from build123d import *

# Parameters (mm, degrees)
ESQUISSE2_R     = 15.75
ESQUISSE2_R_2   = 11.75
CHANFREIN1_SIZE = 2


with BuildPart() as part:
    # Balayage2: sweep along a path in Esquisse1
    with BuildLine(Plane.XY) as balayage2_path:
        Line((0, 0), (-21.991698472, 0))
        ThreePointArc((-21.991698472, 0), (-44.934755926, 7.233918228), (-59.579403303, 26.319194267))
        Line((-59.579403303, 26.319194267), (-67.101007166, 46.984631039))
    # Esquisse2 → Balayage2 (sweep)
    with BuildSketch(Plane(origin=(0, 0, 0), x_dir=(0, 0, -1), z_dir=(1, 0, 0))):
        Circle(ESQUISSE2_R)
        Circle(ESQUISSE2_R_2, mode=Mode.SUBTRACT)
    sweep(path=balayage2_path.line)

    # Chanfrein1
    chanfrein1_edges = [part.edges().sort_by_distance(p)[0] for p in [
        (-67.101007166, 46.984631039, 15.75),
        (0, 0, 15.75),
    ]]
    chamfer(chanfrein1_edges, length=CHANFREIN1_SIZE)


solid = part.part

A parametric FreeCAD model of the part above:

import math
import FreeCAD as App
import Part
import Sketcher

V = App.Vector
Q = App.Units.Quantity


def edges_at(feature, points):
    """Names of the edges that pass closest to the given points."""
    edges = feature.Shape.Edges
    near = lambda p: min(range(len(edges)), key=lambda i: edges[i].distToShape(Part.Vertex(*p))[0])
    return sorted({f"Edge{near(p) + 1}" for p in points})

doc = App.newDocument("Part")
body = doc.addObject("PartDesign::Body", "Body")

sketch1 = body.newObject("Sketcher::SketchObject", "Sketch")
sketch1.AttachmentSupport = (doc.getObject("YZ_Plane"), [""])
sketch1.MapMode = "FlatFace"
sketch1.addGeometry([
    Part.Circle(V(0, 0, 0), V(0, 0, 1), 16),
    Part.Circle(V(0, 0, 0), V(0, 0, 1), 12),
], False)
sketch1.addConstraint([
    Sketcher.Constraint("Coincident", 0, 3, -1, 1),
    Sketcher.Constraint("Coincident", 1, 3, -1, 1),
    Sketcher.Constraint("Diameter", 0, Q("31.5 mm")),
    Sketcher.Constraint("Diameter", 1, Q("23.5 mm")),
])

sketch2 = body.newObject("Sketcher::SketchObject", "Sketch001")
sketch2.AttachmentSupport = (doc.getObject("XY_Plane"), [""])
sketch2.MapMode = "FlatFace"
sketch2.addGeometry([
    Part.LineSegment(V(0, 0, 0), V(-22, 0, 0)),
    Part.ArcOfCircle(Part.Circle(V(-22, 40, 0), V(0, 0, 1), 40), math.radians(-160), math.radians(-90)),
    Part.LineSegment(V(-60, 26, 0), V(-67, 47, 0)),
], False)
sketch2.addConstraint([
    Sketcher.Constraint("Tangent", 0, 2, 1, 2),
    Sketcher.Constraint("Tangent", 1, 1, 2, 1),
    Sketcher.Constraint("Horizontal", 0),
    Sketcher.Constraint("Coincident", 0, 1, -1, 1),
    Sketcher.Constraint("Radius", 1, Q("40 mm")),
    Sketcher.Constraint("Angle", 2, Q("110 deg")),
    Sketcher.Constraint("DistanceX", 0, 2, 0, 1, Q("21.991698 mm")),
    Sketcher.Constraint("Distance", 2, Q("21.991698 mm")),
])
doc.recompute()

additivepipe = body.newObject("PartDesign::AdditivePipe", "AdditivePipe")
additivepipe.Profile = sketch1
additivepipe.Spine = (sketch2, ["Edge1", "Edge2", "Edge3"])
doc.recompute()

chamfer = body.newObject("PartDesign::Chamfer", "Chamfer")
chamfer.Base = (additivepipe, edges_at(additivepipe, [(-67.101, 46.985, 15.75), (0, 0, 15.75)]))
chamfer.Size = 2

doc.recompute()
